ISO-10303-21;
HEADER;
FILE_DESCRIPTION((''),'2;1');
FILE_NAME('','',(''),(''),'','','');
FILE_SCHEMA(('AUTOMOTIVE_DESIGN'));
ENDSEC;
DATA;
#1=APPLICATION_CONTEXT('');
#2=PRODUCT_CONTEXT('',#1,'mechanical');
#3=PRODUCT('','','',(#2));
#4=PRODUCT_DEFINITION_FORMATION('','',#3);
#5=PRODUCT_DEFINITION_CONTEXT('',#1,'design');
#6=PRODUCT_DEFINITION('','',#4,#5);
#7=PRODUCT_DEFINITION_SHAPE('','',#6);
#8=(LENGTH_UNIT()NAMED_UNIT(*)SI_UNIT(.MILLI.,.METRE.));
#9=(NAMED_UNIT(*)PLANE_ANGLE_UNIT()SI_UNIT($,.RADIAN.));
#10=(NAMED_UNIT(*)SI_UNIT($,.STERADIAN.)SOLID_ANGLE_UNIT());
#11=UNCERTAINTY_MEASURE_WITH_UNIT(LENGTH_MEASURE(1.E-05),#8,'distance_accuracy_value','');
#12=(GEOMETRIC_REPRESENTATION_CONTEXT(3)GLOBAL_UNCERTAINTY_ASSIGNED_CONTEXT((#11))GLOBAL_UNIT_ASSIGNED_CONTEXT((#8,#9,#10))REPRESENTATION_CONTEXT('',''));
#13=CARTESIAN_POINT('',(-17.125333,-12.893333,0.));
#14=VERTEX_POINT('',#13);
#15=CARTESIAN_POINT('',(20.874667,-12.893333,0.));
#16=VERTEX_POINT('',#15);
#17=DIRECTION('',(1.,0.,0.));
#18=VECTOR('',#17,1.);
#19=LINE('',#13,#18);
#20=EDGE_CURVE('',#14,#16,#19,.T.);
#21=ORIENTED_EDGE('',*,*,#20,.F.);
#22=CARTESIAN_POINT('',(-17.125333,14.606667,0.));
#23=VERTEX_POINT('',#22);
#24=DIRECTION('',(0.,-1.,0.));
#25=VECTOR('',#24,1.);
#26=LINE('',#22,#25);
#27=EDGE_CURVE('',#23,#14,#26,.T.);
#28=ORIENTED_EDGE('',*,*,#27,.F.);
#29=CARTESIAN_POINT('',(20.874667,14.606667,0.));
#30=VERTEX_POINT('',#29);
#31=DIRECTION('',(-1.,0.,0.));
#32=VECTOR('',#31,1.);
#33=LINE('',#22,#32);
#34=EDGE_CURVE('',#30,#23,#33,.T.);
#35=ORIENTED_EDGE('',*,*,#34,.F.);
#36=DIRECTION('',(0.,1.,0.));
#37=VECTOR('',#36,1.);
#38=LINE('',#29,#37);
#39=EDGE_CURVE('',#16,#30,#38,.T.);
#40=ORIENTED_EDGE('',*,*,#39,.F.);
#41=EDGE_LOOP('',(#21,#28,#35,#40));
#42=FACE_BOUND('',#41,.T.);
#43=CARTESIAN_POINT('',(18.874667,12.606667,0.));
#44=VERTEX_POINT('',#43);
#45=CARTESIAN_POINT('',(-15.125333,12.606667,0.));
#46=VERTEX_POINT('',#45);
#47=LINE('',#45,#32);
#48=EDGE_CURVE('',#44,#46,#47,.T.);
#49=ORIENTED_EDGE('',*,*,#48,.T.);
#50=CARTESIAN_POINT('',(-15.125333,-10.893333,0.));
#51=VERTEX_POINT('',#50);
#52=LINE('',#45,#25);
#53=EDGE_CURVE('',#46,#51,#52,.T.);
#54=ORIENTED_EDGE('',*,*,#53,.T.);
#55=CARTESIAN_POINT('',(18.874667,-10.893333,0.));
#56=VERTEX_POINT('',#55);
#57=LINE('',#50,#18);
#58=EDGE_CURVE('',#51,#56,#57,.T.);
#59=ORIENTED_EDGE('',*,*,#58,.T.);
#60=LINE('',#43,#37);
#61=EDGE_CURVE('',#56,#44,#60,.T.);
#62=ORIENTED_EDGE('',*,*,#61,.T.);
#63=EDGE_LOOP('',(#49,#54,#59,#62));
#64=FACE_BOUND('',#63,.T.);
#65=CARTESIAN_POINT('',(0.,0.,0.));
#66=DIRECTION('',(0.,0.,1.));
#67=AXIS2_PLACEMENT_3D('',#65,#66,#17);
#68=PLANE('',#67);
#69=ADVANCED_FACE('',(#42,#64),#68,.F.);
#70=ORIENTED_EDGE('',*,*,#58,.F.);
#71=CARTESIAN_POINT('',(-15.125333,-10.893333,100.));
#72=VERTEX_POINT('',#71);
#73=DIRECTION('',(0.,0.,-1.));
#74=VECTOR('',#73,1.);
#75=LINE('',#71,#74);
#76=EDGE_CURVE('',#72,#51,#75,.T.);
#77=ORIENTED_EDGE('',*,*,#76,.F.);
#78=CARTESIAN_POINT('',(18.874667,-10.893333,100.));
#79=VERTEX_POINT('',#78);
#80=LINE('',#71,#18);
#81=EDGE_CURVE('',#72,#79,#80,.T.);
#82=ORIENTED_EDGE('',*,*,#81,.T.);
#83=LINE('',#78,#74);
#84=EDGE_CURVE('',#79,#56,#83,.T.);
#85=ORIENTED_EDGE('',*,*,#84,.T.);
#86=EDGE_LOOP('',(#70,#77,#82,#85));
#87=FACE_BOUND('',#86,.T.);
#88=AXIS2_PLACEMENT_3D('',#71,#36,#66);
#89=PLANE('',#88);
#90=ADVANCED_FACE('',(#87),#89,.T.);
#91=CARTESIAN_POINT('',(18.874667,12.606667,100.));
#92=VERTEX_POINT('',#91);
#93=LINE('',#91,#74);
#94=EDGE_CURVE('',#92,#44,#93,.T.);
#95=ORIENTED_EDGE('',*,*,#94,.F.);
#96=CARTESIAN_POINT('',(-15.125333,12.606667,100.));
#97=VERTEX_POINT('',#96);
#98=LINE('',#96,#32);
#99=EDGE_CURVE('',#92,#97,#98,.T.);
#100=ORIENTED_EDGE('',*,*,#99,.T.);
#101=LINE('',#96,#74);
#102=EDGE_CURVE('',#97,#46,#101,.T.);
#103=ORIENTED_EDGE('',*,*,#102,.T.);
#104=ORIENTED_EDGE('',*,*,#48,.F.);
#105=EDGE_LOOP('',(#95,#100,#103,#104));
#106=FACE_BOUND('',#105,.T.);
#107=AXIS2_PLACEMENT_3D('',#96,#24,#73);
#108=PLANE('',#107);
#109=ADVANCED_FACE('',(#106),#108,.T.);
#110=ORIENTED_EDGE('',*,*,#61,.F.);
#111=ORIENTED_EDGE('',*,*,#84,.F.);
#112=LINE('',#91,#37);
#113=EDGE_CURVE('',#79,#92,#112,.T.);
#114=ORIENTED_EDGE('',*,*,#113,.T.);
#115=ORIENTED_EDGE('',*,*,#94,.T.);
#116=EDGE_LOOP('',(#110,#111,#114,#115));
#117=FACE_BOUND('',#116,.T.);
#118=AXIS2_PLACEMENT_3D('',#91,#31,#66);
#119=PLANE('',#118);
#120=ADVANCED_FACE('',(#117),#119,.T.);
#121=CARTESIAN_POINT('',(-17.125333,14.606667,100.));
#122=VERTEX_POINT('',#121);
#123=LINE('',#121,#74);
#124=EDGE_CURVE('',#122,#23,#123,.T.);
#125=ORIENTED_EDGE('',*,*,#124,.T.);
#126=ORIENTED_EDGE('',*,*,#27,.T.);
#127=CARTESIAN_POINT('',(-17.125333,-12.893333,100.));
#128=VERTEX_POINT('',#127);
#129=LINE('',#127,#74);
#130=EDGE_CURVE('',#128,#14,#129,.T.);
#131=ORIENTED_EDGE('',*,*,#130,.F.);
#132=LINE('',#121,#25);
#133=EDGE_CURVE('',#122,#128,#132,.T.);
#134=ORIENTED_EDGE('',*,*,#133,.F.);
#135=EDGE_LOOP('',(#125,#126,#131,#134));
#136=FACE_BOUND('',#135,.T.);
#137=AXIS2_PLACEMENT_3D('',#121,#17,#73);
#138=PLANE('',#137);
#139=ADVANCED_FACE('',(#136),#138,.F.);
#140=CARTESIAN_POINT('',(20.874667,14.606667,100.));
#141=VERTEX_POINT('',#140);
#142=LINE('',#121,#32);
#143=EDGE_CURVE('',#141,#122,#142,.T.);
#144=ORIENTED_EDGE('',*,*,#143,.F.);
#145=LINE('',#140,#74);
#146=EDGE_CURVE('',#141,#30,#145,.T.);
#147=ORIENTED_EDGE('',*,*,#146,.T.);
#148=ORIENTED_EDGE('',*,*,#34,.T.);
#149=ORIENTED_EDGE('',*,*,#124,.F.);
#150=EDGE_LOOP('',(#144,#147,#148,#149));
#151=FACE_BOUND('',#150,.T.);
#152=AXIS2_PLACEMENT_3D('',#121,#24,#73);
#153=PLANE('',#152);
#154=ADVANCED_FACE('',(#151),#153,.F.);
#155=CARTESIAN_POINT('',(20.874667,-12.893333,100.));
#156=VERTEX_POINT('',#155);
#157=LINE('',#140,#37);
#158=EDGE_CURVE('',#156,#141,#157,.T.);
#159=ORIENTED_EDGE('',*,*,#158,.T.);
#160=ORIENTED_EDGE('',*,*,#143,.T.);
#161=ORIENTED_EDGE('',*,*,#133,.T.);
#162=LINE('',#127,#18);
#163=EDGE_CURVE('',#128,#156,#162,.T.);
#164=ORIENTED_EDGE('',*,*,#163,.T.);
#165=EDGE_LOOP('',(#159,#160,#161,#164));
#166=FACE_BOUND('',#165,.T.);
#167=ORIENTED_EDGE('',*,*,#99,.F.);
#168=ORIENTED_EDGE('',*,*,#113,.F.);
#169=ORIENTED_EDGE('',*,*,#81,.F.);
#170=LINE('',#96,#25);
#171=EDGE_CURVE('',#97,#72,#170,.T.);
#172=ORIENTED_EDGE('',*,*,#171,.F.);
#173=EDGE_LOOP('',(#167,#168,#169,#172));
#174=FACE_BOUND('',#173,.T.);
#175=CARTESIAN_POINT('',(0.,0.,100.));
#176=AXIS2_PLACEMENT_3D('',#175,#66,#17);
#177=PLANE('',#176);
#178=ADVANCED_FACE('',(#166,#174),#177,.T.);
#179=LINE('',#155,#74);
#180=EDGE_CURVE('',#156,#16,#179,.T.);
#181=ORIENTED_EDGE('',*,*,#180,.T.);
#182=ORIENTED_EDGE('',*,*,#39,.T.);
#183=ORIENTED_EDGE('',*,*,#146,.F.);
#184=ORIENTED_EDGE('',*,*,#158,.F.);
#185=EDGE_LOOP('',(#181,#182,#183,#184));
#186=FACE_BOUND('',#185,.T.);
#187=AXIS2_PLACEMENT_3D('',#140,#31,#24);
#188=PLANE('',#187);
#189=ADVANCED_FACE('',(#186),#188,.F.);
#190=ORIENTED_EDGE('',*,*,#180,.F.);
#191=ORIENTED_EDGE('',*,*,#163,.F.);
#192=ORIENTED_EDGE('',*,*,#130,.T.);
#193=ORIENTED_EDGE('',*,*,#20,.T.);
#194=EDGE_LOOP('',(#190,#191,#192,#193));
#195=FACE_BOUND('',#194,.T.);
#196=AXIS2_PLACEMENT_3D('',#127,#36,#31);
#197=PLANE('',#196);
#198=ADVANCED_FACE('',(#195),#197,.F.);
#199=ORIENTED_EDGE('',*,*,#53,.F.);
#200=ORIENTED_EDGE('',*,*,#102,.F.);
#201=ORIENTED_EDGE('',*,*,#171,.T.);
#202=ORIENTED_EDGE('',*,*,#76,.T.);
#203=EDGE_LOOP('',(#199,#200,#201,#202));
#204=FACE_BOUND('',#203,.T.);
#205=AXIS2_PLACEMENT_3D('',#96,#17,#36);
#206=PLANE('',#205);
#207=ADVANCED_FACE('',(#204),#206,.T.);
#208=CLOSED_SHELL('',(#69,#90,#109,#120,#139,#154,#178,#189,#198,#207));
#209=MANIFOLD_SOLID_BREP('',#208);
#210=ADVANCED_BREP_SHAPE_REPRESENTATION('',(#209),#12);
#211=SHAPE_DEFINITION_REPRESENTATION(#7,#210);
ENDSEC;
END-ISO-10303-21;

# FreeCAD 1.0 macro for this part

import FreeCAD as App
import Part
import Sketcher
from FreeCAD import Vector


def add_polygon(sketch, points):
    """Adds a closed chain of lines whose ends are joined by coincident constraints."""
    first, n = sketch.GeometryCount, len(points)
    for a, b in zip(points, points[1:] + points[:1]):
        sketch.addGeometry(Part.LineSegment(App.Vector(*a, 0), App.Vector(*b, 0)), False)
    for i in range(n):
        sketch.addConstraint(Sketcher.Constraint("Coincident", first + i, 2, first + (i + 1) % n, 1))

doc = App.newDocument("Part")
body = doc.addObject("PartDesign::Body", "Body")

sketch1 = body.newObject("Sketcher::SketchObject", "Sketch")
sketch1.AttachmentSupport = (doc.getObject("XY_Plane"), [""])
sketch1.MapMode = "FlatFace"
add_polygon(sketch1, [(-17, 15), (-17, -13), (21, -13), (21, 15)])
add_polygon(sketch1, [(19, -11), (-15, -11), (-15, 13), (19, 13)])
sketch1.addConstraint([
    Sketcher.Constraint("Vertical", 0),
    Sketcher.Constraint("Horizontal", 1),
    Sketcher.Constraint("Vertical", 2),
    Sketcher.Constraint("Horizontal", 3),
    Sketcher.Constraint("Horizontal", 4),
    Sketcher.Constraint("Vertical", 5),
    Sketcher.Constraint("Horizontal", 6),
    Sketcher.Constraint("Vertical", 7),
    Sketcher.Constraint("DistanceX", 1, 1, 1, 2, 38.0),
    Sketcher.Constraint("DistanceX", 4, 2, 4, 1, 34.0),
    Sketcher.Constraint("DistanceY", 0, 2, 0, 1, 27.5),
    Sketcher.Constraint("DistanceY", 5, 1, 5, 2, 23.5),
    Sketcher.Constraint("DistanceX", 0, 2, 4, 2, 2.0),
    Sketcher.Constraint("DistanceY", 0, 2, 4, 2, 2.0),
    Sketcher.Constraint("DistanceX", 0, 2, -1, 1, 17.125333),
    Sketcher.Constraint("DistanceY", 0, 2, -1, 1, 12.893333),
])
pad1 = body.newObject("PartDesign::Pad", "Pad")
pad1.Profile = sketch1
pad1.Length = 100

doc.recompute()
